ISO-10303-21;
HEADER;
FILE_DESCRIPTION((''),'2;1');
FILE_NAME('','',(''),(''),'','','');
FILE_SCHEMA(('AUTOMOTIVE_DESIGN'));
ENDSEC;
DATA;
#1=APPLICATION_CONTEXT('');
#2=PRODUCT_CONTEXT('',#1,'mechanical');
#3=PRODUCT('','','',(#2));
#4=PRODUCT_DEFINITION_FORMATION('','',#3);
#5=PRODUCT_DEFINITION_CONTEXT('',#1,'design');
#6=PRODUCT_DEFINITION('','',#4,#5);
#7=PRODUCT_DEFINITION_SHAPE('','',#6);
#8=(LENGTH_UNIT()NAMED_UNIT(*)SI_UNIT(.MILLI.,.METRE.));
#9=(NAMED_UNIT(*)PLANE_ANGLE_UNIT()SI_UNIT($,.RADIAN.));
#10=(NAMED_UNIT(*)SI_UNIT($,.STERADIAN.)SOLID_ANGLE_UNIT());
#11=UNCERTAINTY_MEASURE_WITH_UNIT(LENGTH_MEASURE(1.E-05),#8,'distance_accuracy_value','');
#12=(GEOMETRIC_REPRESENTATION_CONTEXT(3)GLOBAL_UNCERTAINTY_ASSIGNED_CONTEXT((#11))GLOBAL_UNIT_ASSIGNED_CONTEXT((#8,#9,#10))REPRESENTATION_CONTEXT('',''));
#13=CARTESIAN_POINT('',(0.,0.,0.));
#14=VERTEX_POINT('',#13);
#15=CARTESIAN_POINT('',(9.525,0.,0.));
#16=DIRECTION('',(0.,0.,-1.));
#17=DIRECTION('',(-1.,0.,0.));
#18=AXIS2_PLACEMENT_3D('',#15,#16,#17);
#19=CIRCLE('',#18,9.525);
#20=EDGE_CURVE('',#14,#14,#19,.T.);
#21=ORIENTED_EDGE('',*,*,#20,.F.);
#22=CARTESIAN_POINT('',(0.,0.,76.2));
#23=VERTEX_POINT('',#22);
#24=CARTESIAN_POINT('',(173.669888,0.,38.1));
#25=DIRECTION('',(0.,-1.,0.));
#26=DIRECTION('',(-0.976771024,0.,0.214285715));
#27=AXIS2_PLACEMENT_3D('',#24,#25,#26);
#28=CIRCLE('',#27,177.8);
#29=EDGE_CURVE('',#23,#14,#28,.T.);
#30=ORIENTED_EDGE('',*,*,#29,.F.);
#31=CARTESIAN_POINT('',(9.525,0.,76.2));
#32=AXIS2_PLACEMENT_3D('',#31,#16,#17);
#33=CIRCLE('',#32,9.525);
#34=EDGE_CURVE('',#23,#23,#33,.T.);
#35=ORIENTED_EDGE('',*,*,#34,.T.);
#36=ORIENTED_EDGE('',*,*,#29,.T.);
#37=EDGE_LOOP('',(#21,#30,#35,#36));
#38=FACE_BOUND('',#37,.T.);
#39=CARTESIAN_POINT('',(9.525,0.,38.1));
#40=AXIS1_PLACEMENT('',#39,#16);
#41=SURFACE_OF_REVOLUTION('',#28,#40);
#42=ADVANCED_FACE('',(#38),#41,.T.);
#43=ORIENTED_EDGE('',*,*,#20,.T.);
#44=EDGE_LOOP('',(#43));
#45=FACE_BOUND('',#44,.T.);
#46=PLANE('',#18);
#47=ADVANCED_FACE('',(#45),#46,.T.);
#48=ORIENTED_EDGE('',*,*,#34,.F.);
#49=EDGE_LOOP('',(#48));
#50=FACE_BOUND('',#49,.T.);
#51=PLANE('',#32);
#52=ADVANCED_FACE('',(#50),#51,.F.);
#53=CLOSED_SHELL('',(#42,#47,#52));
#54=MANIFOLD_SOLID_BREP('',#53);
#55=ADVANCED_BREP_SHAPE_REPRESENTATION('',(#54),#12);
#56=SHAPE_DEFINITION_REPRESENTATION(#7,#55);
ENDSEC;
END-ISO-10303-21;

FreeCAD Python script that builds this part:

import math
import FreeCAD as App
import Part
import Sketcher
Q = App.Units.Quantity

doc = App.newDocument("Part")
body = doc.addObject("PartDesign::Body", "Body")

# Sketch on XZ plane
sketch1 = body.newObject("Sketcher::SketchObject", "Sketch")
sketch1.AttachmentSupport = (doc.getObject("XZ_Plane"), [""])
sketch1.MapMode = "FlatFace"
sketch1.addGeometry([
    Part.LineSegment(App.Vector(10, 76, 0), App.Vector(0, 76, 0)),
    Part.ArcOfCircle(Part.Circle(App.Vector(174, 38, 0), App.Vector(0, 0, 1), 178), math.radians(168), math.radians(192)),
    Part.LineSegment(App.Vector(0, 0, 0), App.Vector(10, 0, 0)),
    Part.LineSegment(App.Vector(10, 0, 0), App.Vector(10, 76, 0)),
], False)
sketch1.addGeometry(Part.LineSegment(App.Vector(10, 76, 0), App.Vector(10, 0, 0)), True)  # axis
sketch1.addConstraint([
    Sketcher.Constraint("Coincident", 0, 2, 1, 1),
    Sketcher.Constraint("Coincident", 1, 2, 2, 1),
    Sketcher.Constraint("Coincident", 2, 2, 3, 1),
    Sketcher.Constraint("Coincident", 3, 2, 0, 1),
    Sketcher.Constraint("Horizontal", 0),
    Sketcher.Constraint("Horizontal", 2),
    Sketcher.Constraint("Vertical", 3),
    Sketcher.Constraint("Vertical", 4),
    Sketcher.Constraint("Coincident", 1, 2, -1, 1),
    Sketcher.Constraint("Coincident", 4, 1, 3, 2),
    Sketcher.Constraint("PointOnObject", 0, 2, -2),
    Sketcher.Constraint("PointOnObject", 4, 2, -1),
    Sketcher.Constraint("Radius", 1, Q("7 in")),
    Sketcher.Constraint("DistanceY", 3, 1, 3, 2, Q("3 in")),
    Sketcher.Constraint("DistanceX", 0, 2, 0, 1, Q("0.375 in")),
])
revolution = body.newObject("PartDesign::Revolution", "Revolution")
revolution.Profile = sketch1
revolution.ReferenceAxis = (sketch1, ["Axis0"])
revolution.Angle = 360

doc.recompute()
